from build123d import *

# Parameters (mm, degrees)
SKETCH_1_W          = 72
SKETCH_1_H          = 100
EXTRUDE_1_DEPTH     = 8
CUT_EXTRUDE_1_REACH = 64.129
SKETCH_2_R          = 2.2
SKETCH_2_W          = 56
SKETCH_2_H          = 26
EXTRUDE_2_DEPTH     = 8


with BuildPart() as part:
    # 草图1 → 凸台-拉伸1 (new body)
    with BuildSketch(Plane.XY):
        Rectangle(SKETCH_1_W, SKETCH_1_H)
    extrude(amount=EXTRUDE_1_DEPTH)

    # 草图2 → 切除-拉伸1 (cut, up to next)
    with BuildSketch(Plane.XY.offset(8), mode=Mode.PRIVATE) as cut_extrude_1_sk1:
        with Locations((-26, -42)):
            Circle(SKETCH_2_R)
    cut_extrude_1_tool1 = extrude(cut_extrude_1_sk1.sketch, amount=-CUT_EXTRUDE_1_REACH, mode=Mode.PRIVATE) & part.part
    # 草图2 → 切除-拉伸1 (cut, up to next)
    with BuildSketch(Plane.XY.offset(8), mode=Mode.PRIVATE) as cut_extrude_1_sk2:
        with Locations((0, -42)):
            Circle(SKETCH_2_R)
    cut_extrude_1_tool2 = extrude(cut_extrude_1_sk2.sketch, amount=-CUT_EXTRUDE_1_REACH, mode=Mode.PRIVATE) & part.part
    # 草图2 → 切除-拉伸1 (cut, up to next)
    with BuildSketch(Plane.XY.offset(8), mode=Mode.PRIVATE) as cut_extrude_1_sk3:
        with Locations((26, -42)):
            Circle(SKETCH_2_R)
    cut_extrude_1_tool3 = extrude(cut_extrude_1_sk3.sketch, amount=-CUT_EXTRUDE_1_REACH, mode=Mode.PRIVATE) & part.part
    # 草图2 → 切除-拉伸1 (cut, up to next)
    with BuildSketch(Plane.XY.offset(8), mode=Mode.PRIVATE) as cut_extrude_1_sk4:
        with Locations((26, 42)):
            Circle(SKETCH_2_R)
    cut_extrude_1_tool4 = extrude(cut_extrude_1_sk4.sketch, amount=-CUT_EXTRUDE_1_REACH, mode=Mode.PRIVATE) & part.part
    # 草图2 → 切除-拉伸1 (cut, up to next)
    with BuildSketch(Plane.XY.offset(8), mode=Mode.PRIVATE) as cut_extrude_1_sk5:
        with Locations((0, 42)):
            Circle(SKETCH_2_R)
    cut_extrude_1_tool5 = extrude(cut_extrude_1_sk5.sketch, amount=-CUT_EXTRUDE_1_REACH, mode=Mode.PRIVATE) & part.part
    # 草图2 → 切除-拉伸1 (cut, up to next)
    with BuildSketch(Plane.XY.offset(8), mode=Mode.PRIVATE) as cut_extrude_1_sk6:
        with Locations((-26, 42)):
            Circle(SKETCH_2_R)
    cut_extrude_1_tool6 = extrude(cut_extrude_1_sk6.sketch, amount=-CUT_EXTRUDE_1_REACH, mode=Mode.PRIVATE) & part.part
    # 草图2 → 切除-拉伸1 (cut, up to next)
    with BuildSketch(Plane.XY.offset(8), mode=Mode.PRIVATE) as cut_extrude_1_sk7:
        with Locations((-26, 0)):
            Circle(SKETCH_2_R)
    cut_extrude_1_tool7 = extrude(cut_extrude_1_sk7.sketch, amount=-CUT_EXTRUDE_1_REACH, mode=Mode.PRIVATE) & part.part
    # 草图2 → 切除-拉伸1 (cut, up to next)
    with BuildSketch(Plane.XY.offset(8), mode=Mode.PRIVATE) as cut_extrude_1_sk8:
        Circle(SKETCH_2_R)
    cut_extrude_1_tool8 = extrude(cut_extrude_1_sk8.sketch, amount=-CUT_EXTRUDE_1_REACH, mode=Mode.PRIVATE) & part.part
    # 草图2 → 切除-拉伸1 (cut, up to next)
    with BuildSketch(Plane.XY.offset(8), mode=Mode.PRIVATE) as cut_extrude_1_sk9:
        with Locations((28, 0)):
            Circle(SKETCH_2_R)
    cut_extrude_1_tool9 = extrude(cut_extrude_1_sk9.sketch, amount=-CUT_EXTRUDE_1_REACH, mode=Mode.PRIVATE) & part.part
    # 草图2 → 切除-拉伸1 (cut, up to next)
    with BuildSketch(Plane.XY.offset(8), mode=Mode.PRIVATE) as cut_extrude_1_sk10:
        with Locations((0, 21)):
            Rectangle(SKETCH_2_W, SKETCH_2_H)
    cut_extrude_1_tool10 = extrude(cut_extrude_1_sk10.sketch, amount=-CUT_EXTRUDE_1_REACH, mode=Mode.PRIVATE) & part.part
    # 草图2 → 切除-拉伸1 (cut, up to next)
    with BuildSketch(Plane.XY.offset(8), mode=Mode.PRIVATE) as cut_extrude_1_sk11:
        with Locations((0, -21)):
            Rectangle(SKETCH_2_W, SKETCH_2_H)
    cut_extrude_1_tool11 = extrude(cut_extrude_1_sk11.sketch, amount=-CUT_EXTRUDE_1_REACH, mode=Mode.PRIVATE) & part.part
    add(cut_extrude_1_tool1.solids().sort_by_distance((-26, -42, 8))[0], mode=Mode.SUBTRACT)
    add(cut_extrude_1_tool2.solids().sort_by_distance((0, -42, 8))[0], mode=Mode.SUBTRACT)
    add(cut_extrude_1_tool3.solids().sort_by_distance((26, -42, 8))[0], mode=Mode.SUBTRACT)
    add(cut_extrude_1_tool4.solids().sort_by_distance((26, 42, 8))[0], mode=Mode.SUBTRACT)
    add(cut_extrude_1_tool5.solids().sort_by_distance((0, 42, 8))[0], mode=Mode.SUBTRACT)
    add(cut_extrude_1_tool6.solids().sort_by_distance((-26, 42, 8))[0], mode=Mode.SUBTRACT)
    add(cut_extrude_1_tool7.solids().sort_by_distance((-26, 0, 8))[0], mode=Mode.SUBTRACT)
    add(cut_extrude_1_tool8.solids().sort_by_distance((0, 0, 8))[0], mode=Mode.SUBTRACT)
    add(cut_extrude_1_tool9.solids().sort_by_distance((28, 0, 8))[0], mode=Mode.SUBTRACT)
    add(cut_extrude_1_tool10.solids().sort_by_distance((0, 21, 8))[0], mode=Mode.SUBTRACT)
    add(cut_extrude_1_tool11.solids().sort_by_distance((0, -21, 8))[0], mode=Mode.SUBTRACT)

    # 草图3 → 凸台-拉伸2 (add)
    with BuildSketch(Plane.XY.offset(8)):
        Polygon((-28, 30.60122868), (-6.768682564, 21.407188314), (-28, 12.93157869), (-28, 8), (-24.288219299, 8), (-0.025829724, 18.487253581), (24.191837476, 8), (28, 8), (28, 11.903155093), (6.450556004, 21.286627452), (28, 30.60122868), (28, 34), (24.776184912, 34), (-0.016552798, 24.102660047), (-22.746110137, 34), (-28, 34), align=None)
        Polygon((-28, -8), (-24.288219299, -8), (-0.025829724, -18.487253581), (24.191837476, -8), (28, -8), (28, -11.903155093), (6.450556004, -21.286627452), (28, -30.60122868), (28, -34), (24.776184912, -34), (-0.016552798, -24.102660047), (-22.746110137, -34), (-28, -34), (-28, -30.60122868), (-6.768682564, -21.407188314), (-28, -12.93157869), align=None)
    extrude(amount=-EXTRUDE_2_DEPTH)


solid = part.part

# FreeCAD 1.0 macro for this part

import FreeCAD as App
import Part
import Sketcher
from FreeCAD import Vector
Q = App.Units.Quantity

doc = App.newDocument("Part")
params = doc.addObject("Spreadsheet::Sheet", "Params")
for row, (alias, value) in enumerate([
    ("sketch1_width", "72 mm"),
    ("sketch1_height", "100 mm"),
    ("pad1_length", "8 mm"),
    ("sketch2_diameter", "4.4 mm"),
    ("sketch3_diameter", "4.4 mm"),
    ("sketch4_diameter", "4.4 mm"),
    ("sketch5_diameter", "4.4 mm"),
    ("sketch6_diameter", "4.4 mm"),
    ("sketch7_diameter", "4.4 mm"),
    ("sketch8_diameter", "4.4 mm"),
    ("sketch9_diameter", "4.4 mm"),
    ("sketch10_diameter", "4.4 mm"),
    ("sketch11_width", "56 mm"),
    ("sketch11_height", "26 mm"),
    ("sketch12_width", "56 mm"),
    ("sketch12_height", "26 mm"),
    ("pad2_length", "8 mm"),
], start=1):
    params.set(f"A{row}", alias)
    params.set(f"B{row}", "=" + value)
    params.setAlias(f"B{row}", alias)

body = doc.addObject("PartDesign::Body", "Body")

# Sketch on XY plane
sketch1 = body.newObject("Sketcher::SketchObject", "Sketch")
sketch1.AttachmentSupport = (doc.getObject("XY_Plane"), [""])
sketch1.MapMode = "FlatFace"
sketch1.addGeometry([
    Part.LineSegment(Vector(-36, 50, 0), Vector(-36, -50, 0)),
    Part.LineSegment(Vector(-36, -50, 0), Vector(36, -50, 0)),
    Part.LineSegment(Vector(36, -50, 0), Vector(36, 50, 0)),
    Part.LineSegment(Vector(36, 50, 0), Vector(-36, 50, 0)),
], False)
sketch1.addConstraint([
    Sketcher.Constraint("Coincident", 0, 2, 1, 1),
    Sketcher.Constraint("Coincident", 1, 2, 2, 1),
    Sketcher.Constraint("Coincident", 2, 2, 3, 1),
    Sketcher.Constraint("Coincident", 3, 2, 0, 1),
    Sketcher.Constraint("Vertical", 0),
    Sketcher.Constraint("Horizontal", 1),
    Sketcher.Constraint("Vertical", 2),
    Sketcher.Constraint("Horizontal", 3),
    Sketcher.Constraint("Symmetric", 0, 2, 2, 2, -1, 1),
    Sketcher.Constraint("DistanceX", 1, 1, 1, 2, Q("72 mm")),
    Sketcher.Constraint("DistanceY", 0, 2, 0, 1, Q("100 mm")),
])
sketch1.setExpression("Constraints[9]", "Params.sketch1_width")
sketch1.setExpression("Constraints[10]", "Params.sketch1_height")
pad1 = body.newObject("PartDesign::Pad", "Pad")
pad1.Profile = sketch1
pad1.setExpression("Length", "Params.pad1_length")

# Sketch on XY plane
sketch2 = body.newObject("Sketcher::SketchObject", "Sketch001")
sketch2.AttachmentSupport = (doc.getObject("XY_Plane"), [""])
sketch2.MapMode = "FlatFace"
sketch2.AttachmentOffset = App.Placement(Vector(0, 0, 8), App.Rotation())
sketch2.addGeometry(Part.Circle(Vector(-26, -42, 0), Vector(0, 0, 1), 2.2), False)
sketch2.addConstraint([
    Sketcher.Constraint("Diameter", 0, Q("4.4 mm")),
    Sketcher.Constraint("DistanceX", 0, 3, -1, 1, Q("26 mm")),
    Sketcher.Constraint("DistanceY", 0, 3, -1, 1, Q("42 mm")),
])
sketch2.setExpression("Constraints[0]", "Params.sketch2_diameter")
pocket1 = body.newObject("PartDesign::Pocket", "Pocket")
pocket1.Profile = sketch2
pocket1.Type = "UpToFirst"

# Sketch on XY plane
sketch3 = body.newObject("Sketcher::SketchObject", "Sketch002")
sketch3.AttachmentSupport = (doc.getObject("XY_Plane"), [""])
sketch3.MapMode = "FlatFace"
sketch3.AttachmentOffset = App.Placement(Vector(0, 0, 8), App.Rotation())
sketch3.addGeometry(Part.Circle(Vector(0, -42, 0), Vector(0, 0, 1), 2.2), False)
sketch3.addConstraint([
    Sketcher.Constraint("PointOnObject", 0, 3, -2),
    Sketcher.Constraint("Diameter", 0, Q("4.4 mm")),
    Sketcher.Constraint("DistanceY", 0, 3, -1, 1, Q("42 mm")),
])
sketch3.setExpression("Constraints[1]", "Params.sketch3_diameter")
pocket2 = body.newObject("PartDesign::Pocket", "Pocket001")
pocket2.Profile = sketch3
pocket2.Type = "UpToFirst"

# Sketch on XY plane
sketch4 = body.newObject("Sketcher::SketchObject", "Sketch003")
sketch4.AttachmentSupport = (doc.getObject("XY_Plane"), [""])
sketch4.MapMode = "FlatFace"
sketch4.AttachmentOffset = App.Placement(Vector(0, 0, 8), App.Rotation())
sketch4.addGeometry(Part.Circle(Vector(26, -42, 0), Vector(0, 0, 1), 2.2), False)
sketch4.addConstraint([
    Sketcher.Constraint("Diameter", 0, Q("4.4 mm")),
    Sketcher.Constraint("DistanceX", -1, 1, 0, 3, Q("26 mm")),
    Sketcher.Constraint("DistanceY", 0, 3, -1, 1, Q("42 mm")),
])
sketch4.setExpression("Constraints[0]", "Params.sketch4_diameter")
pocket3 = body.newObject("PartDesign::Pocket", "Pocket002")
pocket3.Profile = sketch4
pocket3.Type = "UpToFirst"

# Sketch on XY plane
sketch5 = body.newObject("Sketcher::SketchObject", "Sketch004")
sketch5.AttachmentSupport = (doc.getObject("XY_Plane"), [""])
sketch5.MapMode = "FlatFace"
sketch5.AttachmentOffset = App.Placement(Vector(0, 0, 8), App.Rotation())
sketch5.addGeometry(Part.Circle(Vector(26, 42, 0), Vector(0, 0, 1), 2.2), False)
sketch5.addConstraint([
    Sketcher.Constraint("Diameter", 0, Q("4.4 mm")),
    Sketcher.Constraint("DistanceX", -1, 1, 0, 3, Q("26 mm")),
    Sketcher.Constraint("DistanceY", -1, 1, 0, 3, Q("42 mm")),
])
sketch5.setExpression("Constraints[0]", "Params.sketch5_diameter")
pocket4 = body.newObject("PartDesign::Pocket", "Pocket003")
pocket4.Profile = sketch5
pocket4.Type = "UpToFirst"

# Sketch on XY plane
sketch6 = body.newObject("Sketcher::SketchObject", "Sketch005")
sketch6.AttachmentSupport = (doc.getObject("XY_Plane"), [""])
sketch6.MapMode = "FlatFace"
sketch6.AttachmentOffset = App.Placement(Vector(0, 0, 8), App.Rotation())
sketch6.addGeometry(Part.Circle(Vector(0, 42, 0), Vector(0, 0, 1), 2.2), False)
sketch6.addConstraint([
    Sketcher.Constraint("PointOnObject", 0, 3, -2),
    Sketcher.Constraint("Diameter", 0, Q("4.4 mm")),
    Sketcher.Constraint("DistanceY", -1, 1, 0, 3, Q("42 mm")),
])
sketch6.setExpression("Constraints[1]", "Params.sketch6_diameter")
pocket5 = body.newObject("PartDesign::Pocket", "Pocket004")
pocket5.Profile = sketch6
pocket5.Type = "UpToFirst"

# Sketch on XY plane
sketch7 = body.newObject("Sketcher::SketchObject", "Sketch006")
sketch7.AttachmentSupport = (doc.getObject("XY_Plane"), [""])
sketch7.MapMode = "FlatFace"
sketch7.AttachmentOffset = App.Placement(Vector(0, 0, 8), App.Rotation())
sketch7.addGeometry(Part.Circle(Vector(-26, 42, 0), Vector(0, 0, 1), 2.2), False)
sketch7.addConstraint([
    Sketcher.Constraint("Diameter", 0, Q("4.4 mm")),
    Sketcher.Constraint("DistanceX", 0, 3, -1, 1, Q("26 mm")),
    Sketcher.Constraint("DistanceY", -1, 1, 0, 3, Q("42 mm")),
])
sketch7.setExpression("Constraints[0]", "Params.sketch7_diameter")
pocket6 = body.newObject("PartDesign::Pocket", "Pocket005")
pocket6.Profile = sketch7
pocket6.Type = "UpToFirst"

# Sketch on XY plane
sketch8 = body.newObject("Sketcher::SketchObject", "Sketch007")
sketch8.AttachmentSupport = (doc.getObject("XY_Plane"), [""])
sketch8.MapMode = "FlatFace"
sketch8.AttachmentOffset = App.Placement(Vector(0, 0, 8), App.Rotation())
sketch8.addGeometry(Part.Circle(Vector(-26, 0, 0), Vector(0, 0, 1), 2.2), False)
sketch8.addConstraint([
    Sketcher.Constraint("PointOnObject", 0, 3, -1),
    Sketcher.Constraint("Diameter", 0, Q("4.4 mm")),
    Sketcher.Constraint("DistanceX", 0, 3, -1, 1, Q("26 mm")),
])
sketch8.setExpression("Constraints[1]", "Params.sketch8_diameter")
pocket7 = body.newObject("PartDesign::Pocket", "Pocket006")
pocket7.Profile = sketch8
pocket7.Type = "UpToFirst"

# Sketch on XY plane
sketch9 = body.newObject("Sketcher::SketchObject", "Sketch008")
sketch9.AttachmentSupport = (doc.getObject("XY_Plane"), [""])
sketch9.MapMode = "FlatFace"
sketch9.AttachmentOffset = App.Placement(Vector(0, 0, 8), App.Rotation())
sketch9.addGeometry(Part.Circle(Vector(0, 0, 0), Vector(0, 0, 1), 2.2), False)
sketch9.addConstraint([
    Sketcher.Constraint("Coincident", 0, 3, -1, 1),
    Sketcher.Constraint("Diameter", 0, Q("4.4 mm")),
])
sketch9.setExpression("Constraints[1]", "Params.sketch9_diameter")
pocket8 = body.newObject("PartDesign::Pocket", "Pocket007")
pocket8.Profile = sketch9
pocket8.Type = "UpToFirst"

# Sketch on XY plane
sketch10 = body.newObject("Sketcher::SketchObject", "Sketch009")
sketch10.AttachmentSupport = (doc.getObject("XY_Plane"), [""])
sketch10.MapMode = "FlatFace"
sketch10.AttachmentOffset = App.Placement(Vector(0, 0, 8), App.Rotation())
sketch10.addGeometry(Part.Circle(Vector(28, 0, 0), Vector(0, 0, 1), 2.2), False)
sketch10.addConstraint([
    Sketcher.Constraint("PointOnObject", 0, 3, -1),
    Sketcher.Constraint("Diameter", 0, Q("4.4 mm")),
    Sketcher.Constraint("DistanceX", -1, 1, 0, 3, Q("28 mm")),
])
sketch10.setExpression("Constraints[1]", "Params.sketch10_diameter")
pocket9 = body.newObject("PartDesign::Pocket", "Pocket008")
pocket9.Profile = sketch10
pocket9.Type = "UpToFirst"

# Sketch on XY plane
sketch11 = body.newObject("Sketcher::SketchObject", "Sketch010")
sketch11.AttachmentSupport = (doc.getObject("XY_Plane"), [""])
sketch11.MapMode = "FlatFace"
sketch11.AttachmentOffset = App.Placement(Vector(0, 0, 8), App.Rotation())
sketch11.addGeometry([
    Part.LineSegment(Vector(-28, 34, 0), Vector(-28, 8, 0)),
    Part.LineSegment(Vector(-28, 8, 0), Vector(28, 8, 0)),
    Part.LineSegment(Vector(28, 8, 0), Vector(28, 34, 0)),
    Part.LineSegment(Vector(28, 34, 0), Vector(-28, 34, 0)),
], False)
sketch11.addConstraint([
    Sketcher.Constraint("Coincident", 0, 2, 1, 1),
    Sketcher.Constraint("Coincident", 1, 2, 2, 1),
    Sketcher.Constraint("Coincident", 2, 2, 3, 1),
    Sketcher.Constraint("Coincident", 3, 2, 0, 1),
    Sketcher.Constraint("Vertical", 0),
    Sketcher.Constraint("Horizontal", 1),
    Sketcher.Constraint("Vertical", 2),
    Sketcher.Constraint("Horizontal", 3),
    Sketcher.Constraint("DistanceX", 1, 1, 1, 2, Q("56 mm")),
    Sketcher.Constraint("DistanceY", 0, 2, 0, 1, Q("26 mm")),
    Sketcher.Constraint("DistanceX", 0, 2, -1, 1, Q("28 mm")),
    Sketcher.Constraint("DistanceY", -1, 1, 0, 2, Q("8 mm")),
])
sketch11.setExpression("Constraints[8]", "Params.sketch11_width")
sketch11.setExpression("Constraints[9]", "Params.sketch11_height")
pocket10 = body.newObject("PartDesign::Pocket", "Pocket009")
pocket10.Profile = sketch11
pocket10.Type = "UpToFirst"

# Sketch on XY plane
sketch12 = body.newObject("Sketcher::SketchObject", "Sketch011")
sketch12.AttachmentSupport = (doc.getObject("XY_Plane"), [""])
sketch12.MapMode = "FlatFace"
sketch12.AttachmentOffset = App.Placement(Vector(0, 0, 8), App.Rotation())
sketch12.addGeometry([
    Part.LineSegment(Vector(-28, -8, 0), Vector(-28, -34, 0)),
    Part.LineSegment(Vector(-28, -34, 0), Vector(28, -34, 0)),
    Part.LineSegment(Vector(28, -34, 0), Vector(28, -8, 0)),
    Part.LineSegment(Vector(28, -8, 0), Vector(-28, -8, 0)),
], False)
sketch12.addConstraint([
    Sketcher.Constraint("Coincident", 0, 2, 1, 1),
    Sketcher.Constraint("Coincident", 1, 2, 2, 1),
    Sketcher.Constraint("Coincident", 2, 2, 3, 1),
    Sketcher.Constraint("Coincident", 3, 2, 0, 1),
    Sketcher.Constraint("Vertical", 0),
    Sketcher.Constraint("Horizontal", 1),
    Sketcher.Constraint("Vertical", 2),
    Sketcher.Constraint("Horizontal", 3),
    Sketcher.Constraint("DistanceX", 1, 1, 1, 2, Q("56 mm")),
    Sketcher.Constraint("DistanceY", 0, 2, 0, 1, Q("26 mm")),
    Sketcher.Constraint("DistanceX", 0, 2, -1, 1, Q("28 mm")),
    Sketcher.Constraint("DistanceY", 0, 2, -1, 1, Q("34 mm")),
])
sketch12.setExpression("Constraints[8]", "Params.sketch12_width")
sketch12.setExpression("Constraints[9]", "Params.sketch12_height")
pocket11 = body.newObject("PartDesign::Pocket", "Pocket010")
pocket11.Profile = sketch12
pocket11.Type = "UpToFirst"

# Sketch on XY plane
sketch13 = body.newObject("Sketcher::SketchObject", "Sketch012")
sketch13.AttachmentSupport = (doc.getObject("XY_Plane"), [""])
sketch13.MapMode = "FlatFace"
sketch13.AttachmentOffset = App.Placement(Vector(0, 0, 8), App.Rotation())
sketch13.addGeometry([
    Part.LineSegment(Vector(-28, 30.6, 0), Vector(-6.8, 21.4, 0)),  # 0
    Part.LineSegment(Vector(-6.8, 21.4, 0), Vector(-28, 12.9, 0)),  # 1
    Part.LineSegment(Vector(-28, 12.9, 0), Vector(-28, 8, 0)),  # 2
    Part.LineSegment(Vector(-28, 8, 0), Vector(-24.3, 8, 0)),  # 3
    Part.LineSegment(Vector(-24.3, 8, 0), Vector(0, 18.5, 0)),  # 4
    Part.LineSegment(Vector(0, 18.5, 0), Vector(24.2, 8, 0)),  # 5
    Part.LineSegment(Vector(24.2, 8, 0), Vector(28, 8, 0)),  # 6
    Part.LineSegment(Vector(28, 8, 0), Vector(28, 11.9, 0)),  # 7
    Part.LineSegment(Vector(28, 11.9, 0), Vector(6.5, 21.3, 0)),  # 8
    Part.LineSegment(Vector(6.5, 21.3, 0), Vector(28, 30.6, 0)),  # 9
    Part.LineSegment(Vector(28, 30.6, 0), Vector(28, 34, 0)),  # 10
    Part.LineSegment(Vector(28, 34, 0), Vector(24.8, 34, 0)),  # 11
    Part.LineSegment(Vector(24.8, 34, 0), Vector(0, 24.1, 0)),  # 12
    Part.LineSegment(Vector(0, 24.1, 0), Vector(-22.7, 34, 0)),  # 13
    Part.LineSegment(Vector(-22.7, 34, 0), Vector(-28, 34, 0)),  # 14
    Part.LineSegment(Vector(-28, 34, 0), Vector(-28, 30.6, 0)),  # 15
    Part.LineSegment(Vector(-24.3, -8, 0), Vector(-28, -8, 0)),  # 16
    Part.LineSegment(Vector(-28, -8, 0), Vector(-28, -12.9, 0)),  # 17
    Part.LineSegment(Vector(-28, -12.9, 0), Vector(-6.8, -21.4, 0)),  # 18
    Part.LineSegment(Vector(-6.8, -21.4, 0), Vector(-28, -30.6, 0)),  # 19
    Part.LineSegment(Vector(-28, -30.6, 0), Vector(-28, -34, 0)),  # 20
    Part.LineSegment(Vector(-28, -34, 0), Vector(-22.7, -34, 0)),  # 21
    Part.LineSegment(Vector(-22.7, -34, 0), Vector(0, -24.1, 0)),  # 22
    Part.LineSegment(Vector(0, -24.1, 0), Vector(24.8, -34, 0)),  # 23
    Part.LineSegment(Vector(24.8, -34, 0), Vector(28, -34, 0)),  # 24
    Part.LineSegment(Vector(28, -34, 0), Vector(28, -30.6, 0)),  # 25
    Part.LineSegment(Vector(28, -30.6, 0), Vector(6.5, -21.3, 0)),  # 26
    Part.LineSegment(Vector(6.5, -21.3, 0), Vector(28, -11.9, 0)),  # 27
    Part.LineSegment(Vector(28, -11.9, 0), Vector(28, -8, 0)),  # 28
    Part.LineSegment(Vector(28, -8, 0), Vector(24.2, -8, 0)),  # 29
    Part.LineSegment(Vector(24.2, -8, 0), Vector(0, -18.5, 0)),  # 30
    Part.LineSegment(Vector(0, -18.5, 0), Vector(-24.3, -8, 0)),  # 31
], False)
sketch13.addConstraint([
    Sketcher.Constraint("Coincident", 0, 2, 1, 1),
    Sketcher.Constraint("Coincident", 1, 2, 2, 1),
    Sketcher.Constraint("Coincident", 2, 2, 3, 1),
    Sketcher.Constraint("Coincident", 3, 2, 4, 1),
    Sketcher.Constraint("Coincident", 4, 2, 5, 1),
    Sketcher.Constraint("Coincident", 5, 2, 6, 1),
    Sketcher.Constraint("Coincident", 6, 2, 7, 1),
    Sketcher.Constraint("Coincident", 7, 2, 8, 1),
    Sketcher.Constraint("Coincident", 8, 2, 9, 1),
    Sketcher.Constraint("Coincident", 9, 2, 10, 1),
    Sketcher.Constraint("Coincident", 10, 2, 11, 1),
    Sketcher.Constraint("Coincident", 11, 2, 12, 1),
    Sketcher.Constraint("Coincident", 12, 2, 13, 1),
    Sketcher.Constraint("Coincident", 13, 2, 14, 1),
    Sketcher.Constraint("Coincident", 14, 2, 15, 1),
    Sketcher.Constraint("Coincident", 15, 2, 0, 1),
    Sketcher.Constraint("Coincident", 16, 2, 17, 1),
    Sketcher.Constraint("Coincident", 17, 2, 18, 1),
    Sketcher.Constraint("Coincident", 18, 2, 19, 1),
    Sketcher.Constraint("Coincident", 19, 2, 20, 1),
    Sketcher.Constraint("Coincident", 20, 2, 21, 1),
    Sketcher.Constraint("Coincident", 21, 2, 22, 1),
    Sketcher.Constraint("Coincident", 22, 2, 23, 1),
    Sketcher.Constraint("Coincident", 23, 2, 24, 1),
    Sketcher.Constraint("Coincident", 24, 2, 25, 1),
    Sketcher.Constraint("Coincident", 25, 2, 26, 1),
    Sketcher.Constraint("Coincident", 26, 2, 27, 1),
    Sketcher.Constraint("Coincident", 27, 2, 28, 1),
    Sketcher.Constraint("Coincident", 28, 2, 29, 1),
    Sketcher.Constraint("Coincident", 29, 2, 30, 1),
    Sketcher.Constraint("Coincident", 30, 2, 31, 1),
    Sketcher.Constraint("Coincident", 31, 2, 16, 1),
    Sketcher.Constraint("Vertical", 2),
    Sketcher.Constraint("Horizontal", 3),
    Sketcher.Constraint("Horizontal", 6),
    Sketcher.Constraint("Vertical", 7),
    Sketcher.Constraint("Vertical", 10),
    Sketcher.Constraint("Horizontal", 11),
    Sketcher.Constraint("Horizontal", 14),
    Sketcher.Constraint("Vertical", 15),
    Sketcher.Constraint("Horizontal", 16),
    Sketcher.Constraint("Vertical", 17),
    Sketcher.Constraint("Vertical", 20),
    Sketcher.Constraint("Horizontal", 21),
    Sketcher.Constraint("Horizontal", 24),
    Sketcher.Constraint("Vertical", 25),
    Sketcher.Constraint("Vertical", 28),
    Sketcher.Constraint("Horizontal", 29),
    Sketcher.Constraint("Symmetric", 6, 2, 16, 2, -1, 1),
    Sketcher.Constraint("Symmetric", 9, 2, 19, 2, -1, 1),
    Sketcher.Constraint("Symmetric", 14, 2, 24, 2, -1, 1),
    Sketcher.Constraint("Symmetric", 2, 2, 28, 2, -1, 1),
    Sketcher.Constraint("Symmetric", 2, 2, 6, 2, -2),
    Sketcher.Constraint("Symmetric", 10, 2, 14, 2, -2),
    Sketcher.Constraint("Symmetric", 0, 2, 18, 2, -1),
    Sketcher.Constraint("Symmetric", 13, 2, 21, 2, -1),
    Sketcher.Constraint("Symmetric", 12, 2, 22, 2, -1),
    Sketcher.Constraint("Symmetric", 8, 2, 26, 2, -1),
    Sketcher.Constraint("Symmetric", 4, 2, 30, 2, -1),
    Sketcher.Constraint("Parallel", 0, 5),
    Sketcher.Constraint("Parallel", 4, 9),
    Sketcher.Constraint("Parallel", 1, 12),
    Sketcher.Constraint("Parallel", 8, 13),
    Sketcher.Constraint("Parallel", 18, 23),
    Sketcher.Constraint("Parallel", 22, 27),
    Sketcher.Constraint("Parallel", 19, 30),
    Sketcher.Constraint("Parallel", 26, 31),
    Sketcher.Constraint("Horizontal", 9, 2, 15, 2),
    Sketcher.Constraint("Horizontal", 19, 2, 25, 2),
    Sketcher.Constraint("Vertical", 7, 2, 9, 2),
    Sketcher.Constraint("Vertical", 11, 2, 23, 2),
    Sketcher.Constraint("DistanceX", 1, 2, -1, 1, Q("28 mm")),
    Sketcher.Constraint("DistanceY", -1, 1, 2, 2, Q("8 mm")),
    Sketcher.Constraint("DistanceY", -1, 1, 10, 2, Q("34 mm")),
    Sketcher.Constraint("DistanceX", 3, 1, 3, 2, Q("3.711781 mm")),
    Sketcher.Constraint("DistanceX", 14, 2, 14, 1, Q("5.25389 mm")),
    Sketcher.Constraint("DistanceY", 2, 2, 2, 1, Q("4.931579 mm")),
    Sketcher.Constraint("DistanceY", 10, 1, 10, 2, Q("3.398771 mm")),
    Sketcher.Constraint("DistanceY", 7, 2, 4, 2, Q("6.584098 mm")),
    Sketcher.Constraint("DistanceY", 8, 2, 9, 2, Q("9.314601 mm")),
    Sketcher.Constraint("Distance", 1, Q("22.860551 mm")),
    Sketcher.Constraint("Distance", 8, Q("23.503789 mm")),
    Sketcher.Constraint("Distance", 9, Q("23.476378 mm")),
    Sketcher.Constraint("Distance", 13, Q("24.790928 mm")),
    Sketcher.Constraint("DistanceX", 6, 1, 6, 2, Q("3.808163 mm")),
])
pad2 = body.newObject("PartDesign::Pad", "Pad001")
pad2.Profile = sketch13
pad2.setExpression("Length", "Params.pad2_length")
pad2.Reversed = True

doc.recompute()
